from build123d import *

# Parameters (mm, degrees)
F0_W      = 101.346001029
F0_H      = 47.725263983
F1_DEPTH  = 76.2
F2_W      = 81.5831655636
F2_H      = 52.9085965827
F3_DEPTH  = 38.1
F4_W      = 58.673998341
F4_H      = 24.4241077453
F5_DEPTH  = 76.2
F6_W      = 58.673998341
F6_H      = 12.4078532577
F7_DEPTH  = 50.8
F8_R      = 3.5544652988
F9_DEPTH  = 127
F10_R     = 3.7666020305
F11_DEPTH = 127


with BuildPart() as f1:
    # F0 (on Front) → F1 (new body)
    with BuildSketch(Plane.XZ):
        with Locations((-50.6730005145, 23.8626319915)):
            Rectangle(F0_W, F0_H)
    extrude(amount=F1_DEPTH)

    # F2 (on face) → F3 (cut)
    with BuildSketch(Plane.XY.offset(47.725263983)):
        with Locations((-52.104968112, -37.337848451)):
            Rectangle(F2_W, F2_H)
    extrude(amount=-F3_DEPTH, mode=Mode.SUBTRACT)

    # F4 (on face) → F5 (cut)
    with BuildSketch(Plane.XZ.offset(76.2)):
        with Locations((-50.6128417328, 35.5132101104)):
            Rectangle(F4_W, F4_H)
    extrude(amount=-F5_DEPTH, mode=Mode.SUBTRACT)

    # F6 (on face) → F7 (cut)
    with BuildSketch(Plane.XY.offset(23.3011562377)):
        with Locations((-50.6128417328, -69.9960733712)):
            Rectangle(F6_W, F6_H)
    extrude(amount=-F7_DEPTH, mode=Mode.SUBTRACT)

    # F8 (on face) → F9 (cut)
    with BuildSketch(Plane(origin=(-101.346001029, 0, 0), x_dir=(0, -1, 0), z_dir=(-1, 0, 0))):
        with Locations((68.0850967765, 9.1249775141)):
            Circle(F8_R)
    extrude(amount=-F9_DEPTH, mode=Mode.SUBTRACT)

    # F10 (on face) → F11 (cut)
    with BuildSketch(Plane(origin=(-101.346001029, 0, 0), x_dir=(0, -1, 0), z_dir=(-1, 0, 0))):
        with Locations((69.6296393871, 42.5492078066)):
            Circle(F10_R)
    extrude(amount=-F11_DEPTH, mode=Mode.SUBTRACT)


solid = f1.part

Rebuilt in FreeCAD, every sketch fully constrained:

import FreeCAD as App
import Part
import Sketcher

V = App.Vector
Q = App.Units.Quantity

doc = App.newDocument("Part")
body = doc.addObject("PartDesign::Body", "Body")

# Sketch on XZ plane
sketch1 = body.newObject("Sketcher::SketchObject", "Sketch")
sketch1.AttachmentSupport = (doc.getObject("XZ_Plane"), [""])
sketch1.MapMode = "FlatFace"
sketch1.addGeometry(Part.LineSegment(V(-101, 48, 0), V(-101, 0, 0)), False)
sketch1.addGeometry(Part.LineSegment(V(-101, 0, 0), V(0, 0, 0)), False)
sketch1.addGeometry(Part.LineSegment(V(0, 0, 0), V(0, 48, 0)), False)
sketch1.addGeometry(Part.LineSegment(V(0, 48, 0), V(-101, 48, 0)), False)
sketch1.addConstraint(Sketcher.Constraint("Coincident", 0, 2, 1, 1))
sketch1.addConstraint(Sketcher.Constraint("Coincident", 1, 2, 2, 1))
sketch1.addConstraint(Sketcher.Constraint("Coincident", 2, 2, 3, 1))
sketch1.addConstraint(Sketcher.Constraint("Coincident", 3, 2, 0, 1))
sketch1.addConstraint(Sketcher.Constraint("Vertical", 0))
sketch1.addConstraint(Sketcher.Constraint("Horizontal", 1))
sketch1.addConstraint(Sketcher.Constraint("Vertical", 2))
sketch1.addConstraint(Sketcher.Constraint("Horizontal", 3))
sketch1.addConstraint(Sketcher.Constraint("Coincident", 1, 2, -1, 1))
sketch1.addConstraint(Sketcher.Constraint("DistanceX", 1, 1, 1, 2, Q("3.99 in")))
sketch1.addConstraint(Sketcher.Constraint("DistanceY", 0, 2, 0, 1, Q("47.725264 mm")))
pad1 = body.newObject("PartDesign::Pad", "Pad")
pad1.Profile = sketch1
pad1.Length = Q("3 in")

# Sketch on XY plane
sketch2 = body.newObject("Sketcher::SketchObject", "Sketch001")
sketch2.AttachmentSupport = (doc.getObject("XY_Plane"), [""])
sketch2.MapMode = "FlatFace"
sketch2.AttachmentOffset = App.Placement(V(0, 0, 47.725264), App.Rotation())
sketch2.addGeometry(Part.LineSegment(V(-93, -11, 0), V(-93, -64, 0)), False)
sketch2.addGeometry(Part.LineSegment(V(-93, -64, 0), V(-11, -64, 0)), False)
sketch2.addGeometry(Part.LineSegment(V(-11, -64, 0), V(-11, -11, 0)), False)
sketch2.addGeometry(Part.LineSegment(V(-11, -11, 0), V(-93, -11, 0)), False)
sketch2.addConstraint(Sketcher.Constraint("Coincident", 0, 2, 1, 1))
sketch2.addConstraint(Sketcher.Constraint("Coincident", 1, 2, 2, 1))
sketch2.addConstraint(Sketcher.Constraint("Coincident", 2, 2, 3, 1))
sketch2.addConstraint(Sketcher.Constraint("Coincident", 3, 2, 0, 1))
sketch2.addConstraint(Sketcher.Constraint("Vertical", 0))
sketch2.addConstraint(Sketcher.Constraint("Horizontal", 1))
sketch2.addConstraint(Sketcher.Constraint("Vertical", 2))
sketch2.addConstraint(Sketcher.Constraint("Horizontal", 3))
sketch2.addConstraint(Sketcher.Constraint("DistanceX", 1, 1, 1, 2, Q("81.583166 mm")))
sketch2.addConstraint(Sketcher.Constraint("DistanceY", 0, 2, 0, 1, Q("52.908597 mm")))
sketch2.addConstraint(Sketcher.Constraint("DistanceX", 0, 2, -1, 1, Q("92.896551 mm")))
sketch2.addConstraint(Sketcher.Constraint("DistanceY", 2, 2, -1, 1, Q("10.88355 mm")))
pocket1 = body.newObject("PartDesign::Pocket", "Pocket")
pocket1.Profile = sketch2
pocket1.Length = Q("1.5 in")

# Sketch on XZ plane
sketch3 = body.newObject("Sketcher::SketchObject", "Sketch002")
sketch3.AttachmentSupport = (doc.getObject("XZ_Plane"), [""])
sketch3.MapMode = "FlatFace"
sketch3.AttachmentOffset = App.Placement(V(0, 0, 3 * 25.4), App.Rotation())
sketch3.addGeometry(Part.LineSegment(V(-80, 48, 0), V(-80, 23, 0)), False)
sketch3.addGeometry(Part.LineSegment(V(-80, 23, 0), V(-21, 23, 0)), False)
sketch3.addGeometry(Part.LineSegment(V(-21, 23, 0), V(-21, 48, 0)), False)
sketch3.addGeometry(Part.LineSegment(V(-21, 48, 0), V(-80, 48, 0)), False)
sketch3.addConstraint(Sketcher.Constraint("Coincident", 0, 2, 1, 1))
sketch3.addConstraint(Sketcher.Constraint("Coincident", 1, 2, 2, 1))
sketch3.addConstraint(Sketcher.Constraint("Coincident", 2, 2, 3, 1))
sketch3.addConstraint(Sketcher.Constraint("Coincident", 3, 2, 0, 1))
sketch3.addConstraint(Sketcher.Constraint("Vertical", 0))
sketch3.addConstraint(Sketcher.Constraint("Horizontal", 1))
sketch3.addConstraint(Sketcher.Constraint("Vertical", 2))
sketch3.addConstraint(Sketcher.Constraint("Horizontal", 3))
sketch3.addConstraint(Sketcher.Constraint("DistanceX", 1, 1, 1, 2, Q("2.3099999 in")))
sketch3.addConstraint(Sketcher.Constraint("DistanceY", 0, 2, 0, 1, Q("24.424108 mm")))
sketch3.addConstraint(Sketcher.Constraint("DistanceX", 0, 2, -1, 1, Q("79.949841 mm")))
sketch3.addConstraint(Sketcher.Constraint("DistanceY", -1, 1, 0, 2, Q("23.301156 mm")))
pocket2 = body.newObject("PartDesign::Pocket", "Pocket001")
pocket2.Profile = sketch3
pocket2.Length = Q("3 in")

# Sketch on XY plane
sketch4 = body.newObject("Sketcher::SketchObject", "Sketch003")
sketch4.AttachmentSupport = (doc.getObject("XY_Plane"), [""])
sketch4.MapMode = "FlatFace"
sketch4.AttachmentOffset = App.Placement(V(0, 0, 23.301156), App.Rotation())
sketch4.addGeometry(Part.LineSegment(V(-80, -64, 0), V(-80, -76, 0)), False)
sketch4.addGeometry(Part.LineSegment(V(-80, -76, 0), V(-21, -76, 0)), False)
sketch4.addGeometry(Part.LineSegment(V(-21, -76, 0), V(-21, -64, 0)), False)
sketch4.addGeometry(Part.LineSegment(V(-21, -64, 0), V(-80, -64, 0)), False)
sketch4.addConstraint(Sketcher.Constraint("Coincident", 0, 2, 1, 1))
sketch4.addConstraint(Sketcher.Constraint("Coincident", 1, 2, 2, 1))
sketch4.addConstraint(Sketcher.Constraint("Coincident", 2, 2, 3, 1))
sketch4.addConstraint(Sketcher.Constraint("Coincident", 3, 2, 0, 1))
sketch4.addConstraint(Sketcher.Constraint("Vertical", 0))
sketch4.addConstraint(Sketcher.Constraint("Horizontal", 1))
sketch4.addConstraint(Sketcher.Constraint("Vertical", 2))
sketch4.addConstraint(Sketcher.Constraint("Horizontal", 3))
sketch4.addConstraint(Sketcher.Constraint("DistanceY", 0, 2, -1, 1, Q("3 in")))
sketch4.addConstraint(Sketcher.Constraint("DistanceX", 1, 1, 1, 2, Q("2.3099999 in")))
sketch4.addConstraint(Sketcher.Constraint("DistanceY", 0, 2, 0, 1, Q("12.407853 mm")))
sketch4.addConstraint(Sketcher.Constraint("DistanceX", 0, 2, -1, 1, Q("79.949841 mm")))
pocket3 = body.newObject("PartDesign::Pocket", "Pocket002")
pocket3.Profile = sketch4
pocket3.Length = Q("2 in")

# Sketch on YZ plane
sketch5 = body.newObject("Sketcher::SketchObject", "Sketch004")
sketch5.AttachmentSupport = (doc.getObject("YZ_Plane"), [""])
sketch5.MapMode = "FlatFace"
sketch5.AttachmentOffset = App.Placement(V(0, 0, -3.99 * 25.4), App.Rotation())
sketch5.addGeometry(Part.Circle(V(-68.1, 9.1, 0), V(0, 0, 1), 3.6), False)
sketch5.addConstraint(Sketcher.Constraint("Diameter", 0, Q("7.108931 mm")))
sketch5.addConstraint(Sketcher.Constraint("DistanceX", 0, 3, -1, 1, Q("68.085097 mm")))
sketch5.addConstraint(Sketcher.Constraint("DistanceY", -1, 1, 0, 3, Q("9.124978 mm")))
pocket4 = body.newObject("PartDesign::Pocket", "Pocket003")
pocket4.Profile = sketch5
pocket4.Length = Q("5 in")
pocket4.Reversed = True

# Sketch on YZ plane
sketch6 = body.newObject("Sketcher::SketchObject", "Sketch005")
sketch6.AttachmentSupport = (doc.getObject("YZ_Plane"), [""])
sketch6.MapMode = "FlatFace"
sketch6.AttachmentOffset = App.Placement(V(0, 0, -3.99 * 25.4), App.Rotation())
sketch6.addGeometry(Part.Circle(V(-69.6, 42.5, 0), V(0, 0, 1), 3.8), False)
sketch6.addConstraint(Sketcher.Constraint("Diameter", 0, Q("7.533204 mm")))
sketch6.addConstraint(Sketcher.Constraint("DistanceX", 0, 3, -1, 1, Q("69.629639 mm")))
sketch6.addConstraint(Sketcher.Constraint("DistanceY", -1, 1, 0, 3, Q("42.549208 mm")))
pocket5 = body.newObject("PartDesign::Pocket", "Pocket004")
pocket5.Profile = sketch6
pocket5.Length = Q("5 in")
pocket5.Reversed = True

doc.recompute()
